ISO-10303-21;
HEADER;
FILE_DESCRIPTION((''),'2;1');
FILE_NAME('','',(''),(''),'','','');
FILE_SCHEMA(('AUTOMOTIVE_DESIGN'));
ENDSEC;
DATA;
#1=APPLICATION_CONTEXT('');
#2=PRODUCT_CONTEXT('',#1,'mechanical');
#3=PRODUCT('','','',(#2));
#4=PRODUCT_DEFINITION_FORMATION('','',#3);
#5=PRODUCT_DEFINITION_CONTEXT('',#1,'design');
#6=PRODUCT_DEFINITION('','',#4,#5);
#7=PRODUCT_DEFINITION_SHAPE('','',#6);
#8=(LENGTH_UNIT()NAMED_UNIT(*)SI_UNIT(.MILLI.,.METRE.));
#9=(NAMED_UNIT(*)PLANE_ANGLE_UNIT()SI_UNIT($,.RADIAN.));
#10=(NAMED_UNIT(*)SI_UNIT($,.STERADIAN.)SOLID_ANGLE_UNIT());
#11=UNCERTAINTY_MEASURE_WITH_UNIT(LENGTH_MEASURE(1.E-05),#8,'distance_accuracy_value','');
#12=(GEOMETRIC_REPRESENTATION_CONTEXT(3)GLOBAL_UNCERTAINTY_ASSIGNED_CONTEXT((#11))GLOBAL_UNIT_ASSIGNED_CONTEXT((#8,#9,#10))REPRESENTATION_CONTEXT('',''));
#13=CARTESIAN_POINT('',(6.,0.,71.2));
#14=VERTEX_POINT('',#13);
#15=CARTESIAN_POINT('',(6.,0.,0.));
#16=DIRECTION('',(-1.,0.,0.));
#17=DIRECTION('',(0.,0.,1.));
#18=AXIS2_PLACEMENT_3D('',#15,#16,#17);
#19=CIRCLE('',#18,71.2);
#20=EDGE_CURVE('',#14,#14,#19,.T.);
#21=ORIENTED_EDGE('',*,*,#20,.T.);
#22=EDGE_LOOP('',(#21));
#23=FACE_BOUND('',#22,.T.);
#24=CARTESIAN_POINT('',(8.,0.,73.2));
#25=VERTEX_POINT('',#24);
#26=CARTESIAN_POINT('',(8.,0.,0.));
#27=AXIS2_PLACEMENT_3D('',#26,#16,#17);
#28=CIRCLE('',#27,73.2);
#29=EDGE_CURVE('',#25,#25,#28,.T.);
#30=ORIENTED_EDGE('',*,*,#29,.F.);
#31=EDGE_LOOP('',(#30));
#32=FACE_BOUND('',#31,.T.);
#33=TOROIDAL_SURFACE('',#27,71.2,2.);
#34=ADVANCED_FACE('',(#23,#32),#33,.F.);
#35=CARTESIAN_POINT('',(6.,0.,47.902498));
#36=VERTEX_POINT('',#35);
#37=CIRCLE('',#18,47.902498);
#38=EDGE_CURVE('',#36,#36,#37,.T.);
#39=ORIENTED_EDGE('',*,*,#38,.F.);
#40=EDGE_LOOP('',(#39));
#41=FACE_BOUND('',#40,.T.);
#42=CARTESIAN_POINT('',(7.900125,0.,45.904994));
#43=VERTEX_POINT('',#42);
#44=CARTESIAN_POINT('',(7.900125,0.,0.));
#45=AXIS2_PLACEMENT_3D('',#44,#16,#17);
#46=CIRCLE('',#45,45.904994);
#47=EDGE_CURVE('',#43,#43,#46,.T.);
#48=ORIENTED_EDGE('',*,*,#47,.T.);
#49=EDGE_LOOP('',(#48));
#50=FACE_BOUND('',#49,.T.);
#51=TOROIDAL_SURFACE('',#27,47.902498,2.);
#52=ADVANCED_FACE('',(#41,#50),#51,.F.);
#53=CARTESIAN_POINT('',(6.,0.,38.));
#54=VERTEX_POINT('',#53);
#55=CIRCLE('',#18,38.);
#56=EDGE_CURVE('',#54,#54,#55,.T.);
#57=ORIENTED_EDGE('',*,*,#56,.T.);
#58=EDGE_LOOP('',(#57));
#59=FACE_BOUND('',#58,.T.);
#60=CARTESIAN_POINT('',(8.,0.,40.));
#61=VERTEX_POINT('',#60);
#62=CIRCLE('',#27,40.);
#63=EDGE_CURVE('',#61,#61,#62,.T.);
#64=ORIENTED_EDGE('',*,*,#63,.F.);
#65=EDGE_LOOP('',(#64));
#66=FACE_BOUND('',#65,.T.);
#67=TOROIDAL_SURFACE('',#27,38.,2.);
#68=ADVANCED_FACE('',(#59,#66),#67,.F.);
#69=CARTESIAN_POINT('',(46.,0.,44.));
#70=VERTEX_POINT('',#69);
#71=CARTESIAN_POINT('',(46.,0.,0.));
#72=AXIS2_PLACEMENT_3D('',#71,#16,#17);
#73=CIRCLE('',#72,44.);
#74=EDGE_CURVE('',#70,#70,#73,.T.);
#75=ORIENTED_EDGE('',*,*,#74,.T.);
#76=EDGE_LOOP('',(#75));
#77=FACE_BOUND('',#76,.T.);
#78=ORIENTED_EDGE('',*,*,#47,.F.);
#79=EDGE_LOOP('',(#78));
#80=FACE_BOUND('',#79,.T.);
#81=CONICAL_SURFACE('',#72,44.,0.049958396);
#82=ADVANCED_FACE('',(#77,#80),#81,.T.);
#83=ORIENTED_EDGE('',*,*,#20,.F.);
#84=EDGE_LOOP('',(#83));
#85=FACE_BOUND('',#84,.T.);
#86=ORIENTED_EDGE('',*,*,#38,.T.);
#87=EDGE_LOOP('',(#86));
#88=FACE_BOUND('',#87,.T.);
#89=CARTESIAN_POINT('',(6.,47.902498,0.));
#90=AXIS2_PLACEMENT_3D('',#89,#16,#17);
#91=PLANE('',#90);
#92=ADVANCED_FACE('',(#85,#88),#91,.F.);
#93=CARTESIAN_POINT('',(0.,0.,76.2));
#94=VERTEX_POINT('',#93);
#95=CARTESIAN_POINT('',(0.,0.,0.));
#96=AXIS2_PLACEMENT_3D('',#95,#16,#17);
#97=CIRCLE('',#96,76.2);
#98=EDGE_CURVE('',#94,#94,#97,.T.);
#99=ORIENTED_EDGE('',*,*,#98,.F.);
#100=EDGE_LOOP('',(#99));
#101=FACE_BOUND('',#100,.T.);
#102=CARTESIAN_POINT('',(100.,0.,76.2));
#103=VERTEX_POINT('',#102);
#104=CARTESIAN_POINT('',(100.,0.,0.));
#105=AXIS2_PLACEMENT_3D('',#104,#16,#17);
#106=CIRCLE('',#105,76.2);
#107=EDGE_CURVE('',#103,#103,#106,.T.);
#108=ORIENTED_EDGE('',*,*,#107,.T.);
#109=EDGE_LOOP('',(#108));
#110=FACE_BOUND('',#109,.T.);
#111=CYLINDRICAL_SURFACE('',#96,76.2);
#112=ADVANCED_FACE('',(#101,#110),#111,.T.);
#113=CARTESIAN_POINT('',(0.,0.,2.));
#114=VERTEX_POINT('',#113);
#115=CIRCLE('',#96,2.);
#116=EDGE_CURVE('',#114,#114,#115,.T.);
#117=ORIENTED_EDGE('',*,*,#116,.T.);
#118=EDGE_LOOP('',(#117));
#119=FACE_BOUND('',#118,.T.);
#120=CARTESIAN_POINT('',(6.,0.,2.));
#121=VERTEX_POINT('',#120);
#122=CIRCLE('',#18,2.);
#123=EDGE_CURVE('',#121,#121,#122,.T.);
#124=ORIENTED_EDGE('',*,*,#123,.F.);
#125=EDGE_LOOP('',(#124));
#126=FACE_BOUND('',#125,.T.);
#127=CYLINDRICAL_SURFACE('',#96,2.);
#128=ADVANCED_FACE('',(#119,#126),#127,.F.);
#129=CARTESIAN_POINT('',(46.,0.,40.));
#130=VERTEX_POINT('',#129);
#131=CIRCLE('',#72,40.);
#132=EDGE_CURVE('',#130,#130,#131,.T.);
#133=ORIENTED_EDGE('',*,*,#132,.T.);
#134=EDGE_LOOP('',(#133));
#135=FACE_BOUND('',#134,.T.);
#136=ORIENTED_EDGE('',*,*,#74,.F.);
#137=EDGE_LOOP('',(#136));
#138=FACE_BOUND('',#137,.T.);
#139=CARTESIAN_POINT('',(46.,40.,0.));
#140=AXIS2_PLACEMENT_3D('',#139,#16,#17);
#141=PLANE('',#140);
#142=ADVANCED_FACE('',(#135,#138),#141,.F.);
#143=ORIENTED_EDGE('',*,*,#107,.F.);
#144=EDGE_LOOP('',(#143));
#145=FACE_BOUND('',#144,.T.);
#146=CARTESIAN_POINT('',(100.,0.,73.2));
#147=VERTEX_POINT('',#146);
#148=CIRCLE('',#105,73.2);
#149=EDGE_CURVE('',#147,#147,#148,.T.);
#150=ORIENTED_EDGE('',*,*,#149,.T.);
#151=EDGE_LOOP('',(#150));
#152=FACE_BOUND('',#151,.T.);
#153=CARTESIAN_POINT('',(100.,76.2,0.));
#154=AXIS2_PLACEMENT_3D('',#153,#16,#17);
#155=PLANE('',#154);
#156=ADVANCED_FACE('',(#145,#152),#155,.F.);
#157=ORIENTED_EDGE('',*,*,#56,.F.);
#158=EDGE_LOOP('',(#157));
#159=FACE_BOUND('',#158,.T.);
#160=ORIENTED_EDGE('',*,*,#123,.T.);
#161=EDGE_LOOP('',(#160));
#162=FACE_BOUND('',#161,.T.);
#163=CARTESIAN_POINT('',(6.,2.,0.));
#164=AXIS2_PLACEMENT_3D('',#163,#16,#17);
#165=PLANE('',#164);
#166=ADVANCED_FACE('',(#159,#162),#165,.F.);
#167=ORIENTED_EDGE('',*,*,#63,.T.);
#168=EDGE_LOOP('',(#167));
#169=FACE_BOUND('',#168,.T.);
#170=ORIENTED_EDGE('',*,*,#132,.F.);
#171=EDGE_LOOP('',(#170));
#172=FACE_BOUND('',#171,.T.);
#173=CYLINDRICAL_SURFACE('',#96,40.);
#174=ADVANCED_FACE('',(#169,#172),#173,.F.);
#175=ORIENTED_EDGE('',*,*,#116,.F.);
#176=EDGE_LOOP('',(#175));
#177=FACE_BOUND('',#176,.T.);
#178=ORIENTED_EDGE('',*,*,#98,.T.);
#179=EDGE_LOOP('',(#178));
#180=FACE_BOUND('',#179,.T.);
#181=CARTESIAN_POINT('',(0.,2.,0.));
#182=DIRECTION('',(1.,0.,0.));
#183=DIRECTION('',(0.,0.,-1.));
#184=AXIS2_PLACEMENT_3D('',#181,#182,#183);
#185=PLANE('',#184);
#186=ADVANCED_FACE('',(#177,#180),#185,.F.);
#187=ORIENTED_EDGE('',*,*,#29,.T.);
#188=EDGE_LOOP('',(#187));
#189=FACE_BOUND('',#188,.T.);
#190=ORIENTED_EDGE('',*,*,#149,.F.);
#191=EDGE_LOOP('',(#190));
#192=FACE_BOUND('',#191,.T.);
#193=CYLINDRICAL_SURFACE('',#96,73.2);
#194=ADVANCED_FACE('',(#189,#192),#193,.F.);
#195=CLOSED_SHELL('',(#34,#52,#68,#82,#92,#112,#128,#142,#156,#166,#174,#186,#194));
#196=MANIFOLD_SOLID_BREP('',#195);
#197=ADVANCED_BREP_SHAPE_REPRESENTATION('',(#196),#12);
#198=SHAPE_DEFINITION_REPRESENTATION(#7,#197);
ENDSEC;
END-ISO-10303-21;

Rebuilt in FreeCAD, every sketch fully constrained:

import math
import FreeCAD as App
import Part
import Sketcher

V = App.Vector
Q = App.Units.Quantity

doc = App.newDocument("Part")
body = doc.addObject("PartDesign::Body", "Body")

# Sketch on XY plane
sketch1 = body.newObject("Sketcher::SketchObject", "Sketch")
sketch1.AttachmentSupport = (doc.getObject("XY_Plane"), [""])
sketch1.MapMode = "FlatFace"
sketch1.addGeometry(Part.LineSegment(V(46, 44, 0), V(7.9, 45.9, 0)), False)
sketch1.addGeometry(Part.ArcOfCircle(Part.Circle(V(8, 47.9, 0), V(0, 0, 1), 2), math.radians(180), math.radians(267)), False)
sketch1.addGeometry(Part.LineSegment(V(6, 47.9, 0), V(6, 71.2, 0)), False)
sketch1.addGeometry(Part.ArcOfCircle(Part.Circle(V(8, 71.2, 0), V(0, 0, 1), 2), math.radians(90), math.radians(180)), False)
sketch1.addGeometry(Part.LineSegment(V(8, 73.2, 0), V(100, 73.2, 0)), False)
sketch1.addGeometry(Part.LineSegment(V(100, 73.2, 0), V(100, 76.2, 0)), False)
sketch1.addGeometry(Part.LineSegment(V(100, 76.2, 0), V(0, 76.2, 0)), False)
sketch1.addGeometry(Part.LineSegment(V(0, 76.2, 0), V(0, 2, 0)), False)
sketch1.addGeometry(Part.LineSegment(V(0, 2, 0), V(6, 2, 0)), False)
sketch1.addGeometry(Part.LineSegment(V(6, 2, 0), V(6, 38, 0)), False)
sketch1.addGeometry(Part.ArcOfCircle(Part.Circle(V(8, 38, 0), V(0, 0, 1), 2), math.radians(90), math.radians(180)), False)
sketch1.addGeometry(Part.LineSegment(V(8, 40, 0), V(46, 40, 0)), False)
sketch1.addGeometry(Part.LineSegment(V(46, 40, 0), V(46, 44, 0)), False)
sketch1.addConstraint(Sketcher.Constraint("Tangent", 0, 2, 1, 2))
sketch1.addConstraint(Sketcher.Constraint("Tangent", 1, 1, 2, 1))
sketch1.addConstraint(Sketcher.Constraint("Tangent", 2, 2, 3, 2))
sketch1.addConstraint(Sketcher.Constraint("Tangent", 3, 1, 4, 1))
sketch1.addConstraint(Sketcher.Constraint("Coincident", 4, 2, 5, 1))
sketch1.addConstraint(Sketcher.Constraint("Coincident", 5, 2, 6, 1))
sketch1.addConstraint(Sketcher.Constraint("Coincident", 6, 2, 7, 1))
sketch1.addConstraint(Sketcher.Constraint("Coincident", 7, 2, 8, 1))
sketch1.addConstraint(Sketcher.Constraint("Coincident", 8, 2, 9, 1))
sketch1.addConstraint(Sketcher.Constraint("Tangent", 9, 2, 10, 2))
sketch1.addConstraint(Sketcher.Constraint("Tangent", 10, 1, 11, 1))
sketch1.addConstraint(Sketcher.Constraint("Coincident", 11, 2, 12, 1))
sketch1.addConstraint(Sketcher.Constraint("Coincident", 12, 2, 0, 1))
sketch1.addConstraint(Sketcher.Constraint("Vertical", 2))
sketch1.addConstraint(Sketcher.Constraint("Horizontal", 4))
sketch1.addConstraint(Sketcher.Constraint("Vertical", 5))
sketch1.addConstraint(Sketcher.Constraint("Horizontal", 6))
sketch1.addConstraint(Sketcher.Constraint("Vertical", 7))
sketch1.addConstraint(Sketcher.Constraint("Horizontal", 8))
sketch1.addConstraint(Sketcher.Constraint("Vertical", 9))
sketch1.addConstraint(Sketcher.Constraint("Horizontal", 11))
sketch1.addConstraint(Sketcher.Constraint("Vertical", 12))
sketch1.addConstraint(Sketcher.Constraint("Equal", 1, 3))
sketch1.addConstraint(Sketcher.Constraint("Equal", 3, 10))
sketch1.addConstraint(Sketcher.Constraint("PointOnObject", 6, 2, -2))
sketch1.addConstraint(Sketcher.Constraint("Vertical", 3, 3, 10, 3))
sketch1.addConstraint(Sketcher.Constraint("Radius", 1, Q("2 mm")))
sketch1.addConstraint(Sketcher.Constraint("DistanceX", 4, 1, 4, 2, Q("92 mm")))
sketch1.addConstraint(Sketcher.Constraint("DistanceX", 6, 2, 6, 1, Q("100 mm")))
sketch1.addConstraint(Sketcher.Constraint("DistanceX", 11, 1, 11, 2, Q("38 mm")))
sketch1.addConstraint(Sketcher.Constraint("DistanceY", 5, 1, 5, 2, Q("3 mm")))
sketch1.addConstraint(Sketcher.Constraint("DistanceY", 9, 1, 9, 2, Q("36 mm")))
sketch1.addConstraint(Sketcher.Constraint("DistanceY", 12, 1, 12, 2, Q("4 mm")))
sketch1.addConstraint(Sketcher.Constraint("DistanceY", 7, 2, 7, 1, Q("74.2 mm")))
sketch1.addConstraint(Sketcher.Constraint("DistanceY", -1, 1, 10, 3, Q("38 mm")))
sketch1.addConstraint(Sketcher.Constraint("DistanceY", 2, 1, 2, 2, Q("23.297502 mm")))
revolution = body.newObject("PartDesign::Revolution", "Revolution")
revolution.Profile = sketch1
revolution.ReferenceAxis = (sketch1, ["H_Axis"])
revolution.Angle = 360

doc.recompute()
